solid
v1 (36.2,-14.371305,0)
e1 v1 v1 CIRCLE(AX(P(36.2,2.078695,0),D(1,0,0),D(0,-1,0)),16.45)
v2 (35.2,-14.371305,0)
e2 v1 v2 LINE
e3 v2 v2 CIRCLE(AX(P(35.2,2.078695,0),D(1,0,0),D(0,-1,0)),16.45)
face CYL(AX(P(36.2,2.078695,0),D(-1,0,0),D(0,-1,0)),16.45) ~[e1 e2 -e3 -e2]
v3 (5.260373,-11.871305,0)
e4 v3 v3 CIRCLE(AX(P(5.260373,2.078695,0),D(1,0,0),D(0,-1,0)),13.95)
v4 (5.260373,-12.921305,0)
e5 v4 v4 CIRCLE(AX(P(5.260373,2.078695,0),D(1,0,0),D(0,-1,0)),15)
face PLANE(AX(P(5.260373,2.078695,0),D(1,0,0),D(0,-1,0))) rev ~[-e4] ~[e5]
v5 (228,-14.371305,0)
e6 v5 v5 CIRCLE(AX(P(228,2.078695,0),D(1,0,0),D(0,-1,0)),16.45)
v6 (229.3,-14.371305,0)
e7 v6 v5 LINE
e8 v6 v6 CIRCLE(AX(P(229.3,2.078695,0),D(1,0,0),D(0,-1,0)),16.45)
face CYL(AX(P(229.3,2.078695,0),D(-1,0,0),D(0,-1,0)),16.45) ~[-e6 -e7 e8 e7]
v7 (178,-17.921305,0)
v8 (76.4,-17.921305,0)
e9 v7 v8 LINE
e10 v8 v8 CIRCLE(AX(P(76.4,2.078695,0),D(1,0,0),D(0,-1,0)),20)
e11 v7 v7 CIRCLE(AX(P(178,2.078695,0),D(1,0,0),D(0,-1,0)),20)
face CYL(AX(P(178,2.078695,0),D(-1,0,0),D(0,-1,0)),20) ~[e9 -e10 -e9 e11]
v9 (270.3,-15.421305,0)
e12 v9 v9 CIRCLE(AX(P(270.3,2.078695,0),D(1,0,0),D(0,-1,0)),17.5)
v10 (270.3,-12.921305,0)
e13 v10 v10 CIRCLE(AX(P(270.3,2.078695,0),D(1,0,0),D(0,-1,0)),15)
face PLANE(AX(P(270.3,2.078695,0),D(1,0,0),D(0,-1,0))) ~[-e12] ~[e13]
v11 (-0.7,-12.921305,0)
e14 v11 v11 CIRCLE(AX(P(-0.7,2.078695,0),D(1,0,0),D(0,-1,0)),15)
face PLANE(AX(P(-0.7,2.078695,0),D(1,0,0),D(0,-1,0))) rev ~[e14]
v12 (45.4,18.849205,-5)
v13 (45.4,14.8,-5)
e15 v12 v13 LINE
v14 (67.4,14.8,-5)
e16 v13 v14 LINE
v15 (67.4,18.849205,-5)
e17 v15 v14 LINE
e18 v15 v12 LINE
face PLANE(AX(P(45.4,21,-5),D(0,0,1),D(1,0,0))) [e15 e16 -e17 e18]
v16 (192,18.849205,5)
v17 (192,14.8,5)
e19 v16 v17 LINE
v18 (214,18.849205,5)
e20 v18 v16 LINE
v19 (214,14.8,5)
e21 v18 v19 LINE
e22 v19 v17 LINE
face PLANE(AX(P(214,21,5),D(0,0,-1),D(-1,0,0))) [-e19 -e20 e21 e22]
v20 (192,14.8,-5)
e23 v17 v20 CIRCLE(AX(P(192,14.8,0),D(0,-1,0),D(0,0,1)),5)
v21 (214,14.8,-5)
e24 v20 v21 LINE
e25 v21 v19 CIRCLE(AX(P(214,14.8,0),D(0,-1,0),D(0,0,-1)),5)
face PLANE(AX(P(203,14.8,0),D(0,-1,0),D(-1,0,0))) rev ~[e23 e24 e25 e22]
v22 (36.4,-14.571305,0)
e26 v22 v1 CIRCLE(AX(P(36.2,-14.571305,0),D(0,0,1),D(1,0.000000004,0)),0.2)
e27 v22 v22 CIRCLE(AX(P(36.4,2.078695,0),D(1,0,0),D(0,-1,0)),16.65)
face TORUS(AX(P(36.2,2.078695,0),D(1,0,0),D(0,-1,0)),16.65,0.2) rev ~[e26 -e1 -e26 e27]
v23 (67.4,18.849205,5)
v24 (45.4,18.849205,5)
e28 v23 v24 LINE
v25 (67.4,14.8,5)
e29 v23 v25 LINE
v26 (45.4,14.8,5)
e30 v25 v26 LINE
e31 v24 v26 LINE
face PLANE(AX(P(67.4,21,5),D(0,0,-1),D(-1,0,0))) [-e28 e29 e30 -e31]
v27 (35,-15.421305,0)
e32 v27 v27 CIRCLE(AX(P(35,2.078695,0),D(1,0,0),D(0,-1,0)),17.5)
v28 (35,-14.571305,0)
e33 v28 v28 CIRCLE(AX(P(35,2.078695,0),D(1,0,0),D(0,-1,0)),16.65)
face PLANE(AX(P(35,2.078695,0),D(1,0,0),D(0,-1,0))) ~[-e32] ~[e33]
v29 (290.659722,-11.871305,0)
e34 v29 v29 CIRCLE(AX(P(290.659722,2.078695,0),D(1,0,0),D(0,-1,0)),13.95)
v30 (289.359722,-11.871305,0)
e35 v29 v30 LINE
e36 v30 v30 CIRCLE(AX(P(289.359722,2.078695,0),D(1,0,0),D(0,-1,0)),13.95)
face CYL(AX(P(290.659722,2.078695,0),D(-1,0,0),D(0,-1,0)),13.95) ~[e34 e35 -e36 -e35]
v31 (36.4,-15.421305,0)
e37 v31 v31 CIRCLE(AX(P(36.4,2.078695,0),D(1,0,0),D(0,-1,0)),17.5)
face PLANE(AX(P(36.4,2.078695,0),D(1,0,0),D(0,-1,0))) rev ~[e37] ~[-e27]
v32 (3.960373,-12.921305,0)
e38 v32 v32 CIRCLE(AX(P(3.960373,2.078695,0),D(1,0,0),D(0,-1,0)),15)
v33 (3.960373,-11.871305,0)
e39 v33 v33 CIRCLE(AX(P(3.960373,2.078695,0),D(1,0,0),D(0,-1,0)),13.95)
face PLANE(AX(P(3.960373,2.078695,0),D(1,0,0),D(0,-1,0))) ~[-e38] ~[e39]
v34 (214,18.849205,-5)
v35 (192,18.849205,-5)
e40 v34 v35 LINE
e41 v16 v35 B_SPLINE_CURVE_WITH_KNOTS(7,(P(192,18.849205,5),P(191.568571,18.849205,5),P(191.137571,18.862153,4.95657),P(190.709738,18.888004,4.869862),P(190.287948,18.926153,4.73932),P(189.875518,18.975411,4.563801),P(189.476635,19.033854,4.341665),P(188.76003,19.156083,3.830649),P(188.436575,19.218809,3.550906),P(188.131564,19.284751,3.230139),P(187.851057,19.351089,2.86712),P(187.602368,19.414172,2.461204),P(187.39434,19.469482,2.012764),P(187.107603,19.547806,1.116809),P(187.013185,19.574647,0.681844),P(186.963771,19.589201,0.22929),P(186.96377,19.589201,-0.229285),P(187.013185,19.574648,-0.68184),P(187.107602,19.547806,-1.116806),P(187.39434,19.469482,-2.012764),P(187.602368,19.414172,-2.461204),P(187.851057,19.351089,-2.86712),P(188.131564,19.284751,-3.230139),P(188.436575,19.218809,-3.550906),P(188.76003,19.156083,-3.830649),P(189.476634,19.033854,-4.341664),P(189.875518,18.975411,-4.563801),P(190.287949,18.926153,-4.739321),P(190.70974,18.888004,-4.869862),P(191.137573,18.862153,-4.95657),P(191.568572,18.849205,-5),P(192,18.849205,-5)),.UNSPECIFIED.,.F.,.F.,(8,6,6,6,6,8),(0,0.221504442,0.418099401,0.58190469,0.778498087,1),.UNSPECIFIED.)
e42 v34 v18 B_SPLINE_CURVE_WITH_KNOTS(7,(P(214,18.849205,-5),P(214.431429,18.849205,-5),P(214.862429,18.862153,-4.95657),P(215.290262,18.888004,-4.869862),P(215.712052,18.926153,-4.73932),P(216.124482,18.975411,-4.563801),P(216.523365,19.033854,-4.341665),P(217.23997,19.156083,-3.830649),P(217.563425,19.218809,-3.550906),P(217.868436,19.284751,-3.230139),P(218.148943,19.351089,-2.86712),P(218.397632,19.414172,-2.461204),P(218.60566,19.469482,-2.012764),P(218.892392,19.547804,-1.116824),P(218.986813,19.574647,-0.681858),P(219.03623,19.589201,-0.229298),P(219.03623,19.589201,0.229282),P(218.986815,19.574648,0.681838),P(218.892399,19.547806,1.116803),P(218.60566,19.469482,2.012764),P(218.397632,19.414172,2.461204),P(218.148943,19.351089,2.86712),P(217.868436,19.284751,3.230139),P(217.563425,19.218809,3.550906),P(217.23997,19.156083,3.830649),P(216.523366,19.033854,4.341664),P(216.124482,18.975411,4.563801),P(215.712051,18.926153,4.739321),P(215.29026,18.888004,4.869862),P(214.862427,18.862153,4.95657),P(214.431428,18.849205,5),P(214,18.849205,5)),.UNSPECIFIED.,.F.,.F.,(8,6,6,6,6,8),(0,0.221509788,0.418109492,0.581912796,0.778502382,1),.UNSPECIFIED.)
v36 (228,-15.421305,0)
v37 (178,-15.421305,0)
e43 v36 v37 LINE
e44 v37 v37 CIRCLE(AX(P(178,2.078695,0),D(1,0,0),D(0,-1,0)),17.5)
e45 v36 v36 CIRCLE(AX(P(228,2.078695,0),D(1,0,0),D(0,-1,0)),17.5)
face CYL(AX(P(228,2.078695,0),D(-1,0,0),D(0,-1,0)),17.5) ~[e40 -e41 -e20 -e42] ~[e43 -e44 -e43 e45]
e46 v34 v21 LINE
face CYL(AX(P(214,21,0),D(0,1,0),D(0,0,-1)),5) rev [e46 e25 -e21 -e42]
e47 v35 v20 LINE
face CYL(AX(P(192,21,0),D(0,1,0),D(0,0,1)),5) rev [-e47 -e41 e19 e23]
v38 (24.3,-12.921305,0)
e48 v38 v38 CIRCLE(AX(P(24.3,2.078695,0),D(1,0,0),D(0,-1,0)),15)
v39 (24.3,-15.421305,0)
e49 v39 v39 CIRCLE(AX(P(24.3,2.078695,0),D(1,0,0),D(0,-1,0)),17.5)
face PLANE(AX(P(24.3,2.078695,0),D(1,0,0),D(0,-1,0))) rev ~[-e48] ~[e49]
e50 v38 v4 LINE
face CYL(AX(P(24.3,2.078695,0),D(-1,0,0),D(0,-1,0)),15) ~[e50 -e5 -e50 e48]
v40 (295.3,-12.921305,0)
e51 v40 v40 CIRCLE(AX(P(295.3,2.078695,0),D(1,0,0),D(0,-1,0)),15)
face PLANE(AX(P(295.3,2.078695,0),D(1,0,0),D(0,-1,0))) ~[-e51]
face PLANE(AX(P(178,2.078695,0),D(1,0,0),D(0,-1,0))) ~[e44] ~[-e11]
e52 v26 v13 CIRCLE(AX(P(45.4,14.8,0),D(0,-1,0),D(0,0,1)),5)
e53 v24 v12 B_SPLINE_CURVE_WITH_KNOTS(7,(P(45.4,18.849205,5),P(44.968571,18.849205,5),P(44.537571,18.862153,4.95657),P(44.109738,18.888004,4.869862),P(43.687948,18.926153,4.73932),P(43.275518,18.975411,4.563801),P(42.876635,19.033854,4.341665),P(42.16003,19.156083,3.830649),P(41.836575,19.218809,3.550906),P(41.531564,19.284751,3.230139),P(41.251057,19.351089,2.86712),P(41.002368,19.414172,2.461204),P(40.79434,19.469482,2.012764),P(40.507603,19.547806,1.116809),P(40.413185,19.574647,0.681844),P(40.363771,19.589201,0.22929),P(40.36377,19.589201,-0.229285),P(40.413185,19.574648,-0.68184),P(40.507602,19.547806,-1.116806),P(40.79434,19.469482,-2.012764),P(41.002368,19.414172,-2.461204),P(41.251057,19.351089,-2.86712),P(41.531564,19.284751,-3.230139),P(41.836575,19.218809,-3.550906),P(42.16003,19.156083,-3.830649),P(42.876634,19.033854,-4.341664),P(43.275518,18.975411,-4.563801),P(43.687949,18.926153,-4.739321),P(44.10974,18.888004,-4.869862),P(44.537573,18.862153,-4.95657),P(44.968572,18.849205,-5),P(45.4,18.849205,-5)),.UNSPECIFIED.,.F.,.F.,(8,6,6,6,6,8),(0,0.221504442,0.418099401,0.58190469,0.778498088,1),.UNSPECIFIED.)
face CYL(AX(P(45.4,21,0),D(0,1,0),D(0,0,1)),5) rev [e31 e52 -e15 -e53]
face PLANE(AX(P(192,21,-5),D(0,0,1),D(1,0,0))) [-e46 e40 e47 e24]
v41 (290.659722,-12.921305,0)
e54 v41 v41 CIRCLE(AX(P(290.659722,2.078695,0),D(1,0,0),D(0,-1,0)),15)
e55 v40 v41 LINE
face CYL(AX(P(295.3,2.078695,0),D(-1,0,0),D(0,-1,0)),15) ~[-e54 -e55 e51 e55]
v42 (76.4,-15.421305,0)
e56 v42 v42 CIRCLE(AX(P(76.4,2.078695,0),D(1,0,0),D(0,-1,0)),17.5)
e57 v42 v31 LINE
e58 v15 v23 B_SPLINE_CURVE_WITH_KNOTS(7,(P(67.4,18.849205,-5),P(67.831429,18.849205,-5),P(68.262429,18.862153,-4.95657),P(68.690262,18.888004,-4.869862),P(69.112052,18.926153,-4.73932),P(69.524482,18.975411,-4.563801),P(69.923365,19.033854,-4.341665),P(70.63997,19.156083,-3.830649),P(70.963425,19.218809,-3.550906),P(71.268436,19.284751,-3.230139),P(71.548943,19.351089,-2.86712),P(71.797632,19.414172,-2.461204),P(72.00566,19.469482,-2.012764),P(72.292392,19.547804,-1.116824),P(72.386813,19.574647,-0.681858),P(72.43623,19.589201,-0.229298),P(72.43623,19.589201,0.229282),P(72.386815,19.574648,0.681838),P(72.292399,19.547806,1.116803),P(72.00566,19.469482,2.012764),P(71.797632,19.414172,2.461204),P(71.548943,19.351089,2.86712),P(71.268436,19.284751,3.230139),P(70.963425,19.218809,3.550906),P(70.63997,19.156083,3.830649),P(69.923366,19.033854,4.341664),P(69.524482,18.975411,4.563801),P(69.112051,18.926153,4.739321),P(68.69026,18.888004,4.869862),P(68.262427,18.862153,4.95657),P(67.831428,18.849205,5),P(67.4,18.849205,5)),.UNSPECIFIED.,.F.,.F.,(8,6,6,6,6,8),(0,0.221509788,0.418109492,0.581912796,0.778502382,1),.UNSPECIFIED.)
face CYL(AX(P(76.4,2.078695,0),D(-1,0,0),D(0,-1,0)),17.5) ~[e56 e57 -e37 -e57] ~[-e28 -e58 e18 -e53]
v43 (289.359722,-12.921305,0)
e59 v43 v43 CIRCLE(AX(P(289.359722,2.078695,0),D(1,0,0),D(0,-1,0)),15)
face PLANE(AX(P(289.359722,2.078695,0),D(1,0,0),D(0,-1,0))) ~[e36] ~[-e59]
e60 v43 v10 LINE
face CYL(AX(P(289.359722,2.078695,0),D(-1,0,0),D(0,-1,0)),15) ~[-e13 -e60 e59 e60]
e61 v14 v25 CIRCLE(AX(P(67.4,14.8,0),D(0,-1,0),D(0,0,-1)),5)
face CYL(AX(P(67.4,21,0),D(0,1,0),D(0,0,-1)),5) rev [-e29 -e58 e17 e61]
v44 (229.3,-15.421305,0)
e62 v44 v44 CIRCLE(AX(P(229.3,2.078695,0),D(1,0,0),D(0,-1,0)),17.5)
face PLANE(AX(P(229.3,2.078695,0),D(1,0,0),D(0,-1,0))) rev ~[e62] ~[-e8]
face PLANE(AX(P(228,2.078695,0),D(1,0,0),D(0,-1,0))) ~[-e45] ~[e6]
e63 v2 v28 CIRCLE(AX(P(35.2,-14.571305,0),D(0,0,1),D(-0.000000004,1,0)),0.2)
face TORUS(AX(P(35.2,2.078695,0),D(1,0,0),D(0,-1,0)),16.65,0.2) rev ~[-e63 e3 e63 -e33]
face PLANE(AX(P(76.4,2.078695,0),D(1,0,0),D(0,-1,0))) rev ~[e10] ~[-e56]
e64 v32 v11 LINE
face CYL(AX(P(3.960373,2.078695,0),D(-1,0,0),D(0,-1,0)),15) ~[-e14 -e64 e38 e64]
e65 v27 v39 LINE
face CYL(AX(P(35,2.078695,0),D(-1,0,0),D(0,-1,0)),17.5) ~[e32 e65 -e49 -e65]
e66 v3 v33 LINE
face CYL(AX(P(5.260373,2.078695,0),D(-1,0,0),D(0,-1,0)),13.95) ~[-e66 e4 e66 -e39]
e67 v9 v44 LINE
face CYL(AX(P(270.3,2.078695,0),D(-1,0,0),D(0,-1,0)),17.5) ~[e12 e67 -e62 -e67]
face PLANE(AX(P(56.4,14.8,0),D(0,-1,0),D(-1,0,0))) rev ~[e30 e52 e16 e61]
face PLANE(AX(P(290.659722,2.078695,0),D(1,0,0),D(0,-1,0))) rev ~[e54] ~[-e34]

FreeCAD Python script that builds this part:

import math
import FreeCAD as App
import Part
import Sketcher
Q = App.Units.Quantity

doc = App.newDocument("Part")
body = doc.addObject("PartDesign::Body", "Body")

sketch1 = body.newObject("Sketcher::SketchObject", "Sketch")
sketch1.AttachmentSupport = (doc.getObject("XY_Plane"), [""])
sketch1.MapMode = "FlatFace"
sketch1.addGeometry(Part.LineSegment(App.Vector(24.3, 17.08, 0), App.Vector(5.26, 17.08, 0)), False)
sketch1.addGeometry(Part.LineSegment(App.Vector(5.26, 17.08, 0), App.Vector(5.26, 16.03, 0)), False)
sketch1.addGeometry(Part.LineSegment(App.Vector(5.26, 16.03, 0), App.Vector(3.96, 16.03, 0)), False)
sketch1.addGeometry(Part.LineSegment(App.Vector(3.96, 16.03, 0), App.Vector(3.96, 17.08, 0)), False)
sketch1.addGeometry(Part.LineSegment(App.Vector(3.96, 17.08, 0), App.Vector(-0.7, 17.08, 0)), False)
sketch1.addGeometry(Part.LineSegment(App.Vector(-0.7, 17.08, 0), App.Vector(-0.7, 2.08, 0)), False)
sketch1.addGeometry(Part.LineSegment(App.Vector(-0.7, 2.08, 0), App.Vector(295.3, 2.08, 0)), False)
sketch1.addGeometry(Part.LineSegment(App.Vector(295.3, 2.08, 0), App.Vector(295.3, 17.08, 0)), False)
sketch1.addGeometry(Part.LineSegment(App.Vector(295.3, 17.08, 0), App.Vector(290.66, 17.08, 0)), False)
sketch1.addGeometry(Part.LineSegment(App.Vector(290.66, 17.08, 0), App.Vector(290.66, 16.03, 0)), False)
sketch1.addGeometry(Part.LineSegment(App.Vector(290.66, 16.03, 0), App.Vector(289.36, 16.03, 0)), False)
sketch1.addGeometry(Part.LineSegment(App.Vector(289.36, 16.03, 0), App.Vector(289.36, 17.08, 0)), False)
sketch1.addGeometry(Part.LineSegment(App.Vector(289.36, 17.08, 0), App.Vector(270.3, 17.08, 0)), False)
sketch1.addGeometry(Part.LineSegment(App.Vector(270.3, 17.08, 0), App.Vector(270.3, 19.58, 0)), False)
sketch1.addGeometry(Part.LineSegment(App.Vector(270.3, 19.58, 0), App.Vector(229.3, 19.58, 0)), False)
sketch1.addGeometry(Part.LineSegment(App.Vector(229.3, 19.58, 0), App.Vector(229.3, 18.53, 0)), False)
sketch1.addGeometry(Part.LineSegment(App.Vector(229.3, 18.53, 0), App.Vector(228, 18.53, 0)), False)
sketch1.addGeometry(Part.LineSegment(App.Vector(228, 18.53, 0), App.Vector(228, 19.58, 0)), False)
sketch1.addGeometry(Part.LineSegment(App.Vector(228, 19.58, 0), App.Vector(178, 19.58, 0)), False)
sketch1.addGeometry(Part.LineSegment(App.Vector(178, 19.58, 0), App.Vector(178, 22.08, 0)), False)
sketch1.addGeometry(Part.LineSegment(App.Vector(178, 22.08, 0), App.Vector(76.4, 22.08, 0)), False)
sketch1.addGeometry(Part.LineSegment(App.Vector(76.4, 22.08, 0), App.Vector(76.4, 19.58, 0)), False)
sketch1.addGeometry(Part.LineSegment(App.Vector(76.4, 19.58, 0), App.Vector(36.4, 19.58, 0)), False)
sketch1.addGeometry(Part.LineSegment(App.Vector(36.4, 19.58, 0), App.Vector(36.4, 18.73, 0)), False)
sketch1.addGeometry(Part.ArcOfCircle(Part.Circle(App.Vector(36.2, 18.73, 0), App.Vector(0, 0, 1), 0.2), math.radians(-90), math.radians(0)), False)
sketch1.addGeometry(Part.LineSegment(App.Vector(36.2, 18.53, 0), App.Vector(35.2, 18.53, 0)), False)
sketch1.addGeometry(Part.ArcOfCircle(Part.Circle(App.Vector(35.2, 18.73, 0), App.Vector(0, 0, 1), 0.2), math.radians(-180), math.radians(-90)), False)
sketch1.addGeometry(Part.LineSegment(App.Vector(35, 18.73, 0), App.Vector(35, 19.58, 0)), False)
sketch1.addGeometry(Part.LineSegment(App.Vector(35, 19.58, 0), App.Vector(24.3, 19.58, 0)), False)
sketch1.addGeometry(Part.LineSegment(App.Vector(24.3, 19.58, 0), App.Vector(24.3, 17.08, 0)), False)
sketch1.addGeometry(Part.LineSegment(App.Vector(-0.7, 2.08, 0), App.Vector(295.3, 2.08, 0)), True)
sketch1.addConstraint(Sketcher.Constraint("Coincident", 0, 2, 1, 1))
sketch1.addConstraint(Sketcher.Constraint("Coincident", 1, 2, 2, 1))
sketch1.addConstraint(Sketcher.Constraint("Coincident", 2, 2, 3, 1))
sketch1.addConstraint(Sketcher.Constraint("Coincident", 3, 2, 4, 1))
sketch1.addConstraint(Sketcher.Constraint("Coincident", 4, 2, 5, 1))
sketch1.addConstraint(Sketcher.Constraint("Coincident", 5, 2, 6, 1))
sketch1.addConstraint(Sketcher.Constraint("Coincident", 6, 2, 7, 1))
sketch1.addConstraint(Sketcher.Constraint("Coincident", 7, 2, 8, 1))
sketch1.addConstraint(Sketcher.Constraint("Coincident", 8, 2, 9, 1))
sketch1.addConstraint(Sketcher.Constraint("Coincident", 9, 2, 10, 1))
sketch1.addConstraint(Sketcher.Constraint("Coincident", 10, 2, 11, 1))
sketch1.addConstraint(Sketcher.Constraint("Coincident", 11, 2, 12, 1))
sketch1.addConstraint(Sketcher.Constraint("Coincident", 12, 2, 13, 1))
sketch1.addConstraint(Sketcher.Constraint("Coincident", 13, 2, 14, 1))
sketch1.addConstraint(Sketcher.Constraint("Coincident", 14, 2, 15, 1))
sketch1.addConstraint(Sketcher.Constraint("Coincident", 15, 2, 16, 1))
sketch1.addConstraint(Sketcher.Constraint("Coincident", 16, 2, 17, 1))
sketch1.addConstraint(Sketcher.Constraint("Coincident", 17, 2, 18, 1))
sketch1.addConstraint(Sketcher.Constraint("Coincident", 18, 2, 19, 1))
sketch1.addConstraint(Sketcher.Constraint("Coincident", 19, 2, 20, 1))
sketch1.addConstraint(Sketcher.Constraint("Coincident", 20, 2, 21, 1))
sketch1.addConstraint(Sketcher.Constraint("Coincident", 21, 2, 22, 1))
sketch1.addConstraint(Sketcher.Constraint("Coincident", 22, 2, 23, 1))
sketch1.addConstraint(Sketcher.Constraint("Tangent", 23, 2, 24, 2))
sketch1.addConstraint(Sketcher.Constraint("Tangent", 24, 1, 25, 1))
sketch1.addConstraint(Sketcher.Constraint("Tangent", 25, 2, 26, 2))
sketch1.addConstraint(Sketcher.Constraint("Tangent", 26, 1, 27, 1))
sketch1.addConstraint(Sketcher.Constraint("Coincident", 27, 2, 28, 1))
sketch1.addConstraint(Sketcher.Constraint("Coincident", 28, 2, 29, 1))
sketch1.addConstraint(Sketcher.Constraint("Coincident", 29, 2, 0, 1))
sketch1.addConstraint(Sketcher.Constraint("Horizontal", 0))
sketch1.addConstraint(Sketcher.Constraint("Vertical", 1))
sketch1.addConstraint(Sketcher.Constraint("Horizontal", 2))
sketch1.addConstraint(Sketcher.Constraint("Vertical", 3))
sketch1.addConstraint(Sketcher.Constraint("Horizontal", 4))
sketch1.addConstraint(Sketcher.Constraint("Vertical", 5))
sketch1.addConstraint(Sketcher.Constraint("Horizontal", 6))
sketch1.addConstraint(Sketcher.Constraint("Vertical", 7))
sketch1.addConstraint(Sketcher.Constraint("Horizontal", 8))
sketch1.addConstraint(Sketcher.Constraint("Vertical", 9))
sketch1.addConstraint(Sketcher.Constraint("Horizontal", 10))
sketch1.addConstraint(Sketcher.Constraint("Vertical", 11))
sketch1.addConstraint(Sketcher.Constraint("Horizontal", 12))
sketch1.addConstraint(Sketcher.Constraint("Vertical", 13))
sketch1.addConstraint(Sketcher.Constraint("Horizontal", 14))
sketch1.addConstraint(Sketcher.Constraint("Vertical", 15))
sketch1.addConstraint(Sketcher.Constraint("Horizontal", 16))
sketch1.addConstraint(Sketcher.Constraint("Vertical", 17))
sketch1.addConstraint(Sketcher.Constraint("Horizontal", 18))
sketch1.addConstraint(Sketcher.Constraint("Vertical", 19))
sketch1.addConstraint(Sketcher.Constraint("Horizontal", 20))
sketch1.addConstraint(Sketcher.Constraint("Vertical", 21))
sketch1.addConstraint(Sketcher.Constraint("Horizontal", 22))
sketch1.addConstraint(Sketcher.Constraint("Vertical", 23))
sketch1.addConstraint(Sketcher.Constraint("Horizontal", 25))
sketch1.addConstraint(Sketcher.Constraint("Vertical", 27))
sketch1.addConstraint(Sketcher.Constraint("Horizontal", 28))
sketch1.addConstraint(Sketcher.Constraint("Vertical", 29))
sketch1.addConstraint(Sketcher.Constraint("Horizontal", 30))
sketch1.addConstraint(Sketcher.Constraint("Coincident", 30, 1, 5, 2))
sketch1.addConstraint(Sketcher.Constraint("Equal", 24, 26))
sketch1.addConstraint(Sketcher.Constraint("Horizontal", 0, 2, 3, 2))
sketch1.addConstraint(Sketcher.Constraint("Horizontal", 4, 2, 7, 2))
sketch1.addConstraint(Sketcher.Constraint("Horizontal", 2, 2, 9, 2))
sketch1.addConstraint(Sketcher.Constraint("Horizontal", 8, 2, 11, 2))
sketch1.addConstraint(Sketcher.Constraint("Horizontal", 14, 2, 17, 2))
sketch1.addConstraint(Sketcher.Constraint("Horizontal", 18, 2, 21, 2))
sketch1.addConstraint(Sketcher.Constraint("Horizontal", 16, 2, 24, 1))
sketch1.addConstraint(Sketcher.Constraint("Horizontal", 22, 2, 27, 2))
sketch1.addConstraint(Sketcher.Constraint("Vertical", 7, 2, 30, 2))
sketch1.addConstraint(Sketcher.Constraint("Equal", 2, 10))
sketch1.addConstraint(Sketcher.Constraint("Equal", 10, 16))
sketch1.addConstraint(Sketcher.Constraint("Equal", 11, 15))
sketch1.addConstraint(Sketcher.Constraint("Equal", 13, 19))
sketch1.addConstraint(Sketcher.Constraint("Radius", 24, Q("0.2 mm")))
sketch1.addConstraint(Sketcher.Constraint("DistanceX", 6, 1, 6, 2, Q("296 mm")))
sketch1.addConstraint(Sketcher.Constraint("DistanceX", 14, 2, 14, 1, Q("41 mm")))
sketch1.addConstraint(Sketcher.Constraint("DistanceX", 18, 2, 18, 1, Q("50 mm")))
sketch1.addConstraint(Sketcher.Constraint("DistanceX", 22, 2, 22, 1, Q("40 mm")))
sketch1.addConstraint(Sketcher.Constraint("DistanceX", 25, 2, 25, 1, Q("1 mm")))
sketch1.addConstraint(Sketcher.Constraint("DistanceY", 5, 2, 5, 1, Q("15 mm")))
sketch1.addConstraint(Sketcher.Constraint("DistanceX", 2, 2, 2, 1, Q("1.3 mm")))
sketch1.addConstraint(Sketcher.Constraint("DistanceX", 20, 2, 20, 1, Q("101.6 mm")))
sketch1.addConstraint(Sketcher.Constraint("DistanceX", 28, 2, 28, 1, Q("10.7 mm")))
sketch1.addConstraint(Sketcher.Constraint("DistanceY", 13, 1, 13, 2, Q("2.5 mm")))
sketch1.addConstraint(Sketcher.Constraint("DistanceX", -1, 1, 16, 2, Q("228 mm")))
sketch1.addConstraint(Sketcher.Constraint("DistanceX", 12, 2, 7, 2, Q("25 mm")))
sketch1.addConstraint(Sketcher.Constraint("DistanceY", 1, 2, 1, 1, Q("1.05 mm")))
sketch1.addConstraint(Sketcher.Constraint("DistanceX", 0, 2, 0, 1, Q("19.039627 mm")))
sketch1.addConstraint(Sketcher.Constraint("DistanceX", 8, 2, 8, 1, Q("4.640278 mm")))
sketch1.addConstraint(Sketcher.Constraint("DistanceY", -1, 1, 24, 3, Q("18.728695 mm")))
revolution = body.newObject("PartDesign::Revolution", "Revolution")
revolution.Profile = sketch1
revolution.ReferenceAxis = (sketch1, ["Axis0"])
revolution.Angle = 360

sketch2 = body.newObject("Sketcher::SketchObject", "Sketch001")
sketch2.AttachmentSupport = (doc.getObject("XZ_Plane"), [""])
sketch2.MapMode = "FlatFace"
sketch2.AttachmentOffset = App.Placement(App.Vector(0, 0, -21), App.Rotation())
sketch2.addGeometry(Part.LineSegment(App.Vector(67, -5, 0), App.Vector(45, -5, 0)), False)
sketch2.addGeometry(Part.ArcOfCircle(Part.Circle(App.Vector(45, 0, 0), App.Vector(0, 0, 1), 5), math.radians(90), math.radians(270)), False)
sketch2.addGeometry(Part.LineSegment(App.Vector(45, 5, 0), App.Vector(67, 5, 0)), False)
sketch2.addGeometry(Part.ArcOfCircle(Part.Circle(App.Vector(67, 0, 0), App.Vector(0, 0, 1), 5), math.radians(-90), math.radians(90)), False)
sketch2.addGeometry(Part.LineSegment(App.Vector(214, -5, 0), App.Vector(192, -5, 0)), False)
sketch2.addGeometry(Part.ArcOfCircle(Part.Circle(App.Vector(192, 0, 0), App.Vector(0, 0, 1), 5), math.radians(90), math.radians(270)), False)
sketch2.addGeometry(Part.LineSegment(App.Vector(192, 5, 0), App.Vector(214, 5, 0)), False)
sketch2.addGeometry(Part.ArcOfCircle(Part.Circle(App.Vector(214, 0, 0), App.Vector(0, 0, 1), 5), math.radians(-90), math.radians(90)), False)
sketch2.addConstraint(Sketcher.Constraint("Tangent", 0, 2, 1, 2))
sketch2.addConstraint(Sketcher.Constraint("Tangent", 1, 1, 2, 1))
sketch2.addConstraint(Sketcher.Constraint("Tangent", 2, 2, 3, 2))
sketch2.addConstraint(Sketcher.Constraint("Tangent", 3, 1, 0, 1))
sketch2.addConstraint(Sketcher.Constraint("Tangent", 4, 2, 5, 2))
sketch2.addConstraint(Sketcher.Constraint("Tangent", 5, 1, 6, 1))
sketch2.addConstraint(Sketcher.Constraint("Tangent", 6, 2, 7, 2))
sketch2.addConstraint(Sketcher.Constraint("Tangent", 7, 1, 4, 1))
sketch2.addConstraint(Sketcher.Constraint("Horizontal", 0))
sketch2.addConstraint(Sketcher.Constraint("Horizontal", 2))
sketch2.addConstraint(Sketcher.Constraint("Horizontal", 4))
sketch2.addConstraint(Sketcher.Constraint("Horizontal", 6))
sketch2.addConstraint(Sketcher.Constraint("Equal", 3, 5))
sketch2.addConstraint(Sketcher.Constraint("PointOnObject", 1, 3, -1))
sketch2.addConstraint(Sketcher.Constraint("PointOnObject", 5, 3, -1))
sketch2.addConstraint(Sketcher.Constraint("Equal", 2, 4))
sketch2.addConstraint(Sketcher.Constraint("Radius", 1, Q("5 mm")))
sketch2.addConstraint(Sketcher.Constraint("DistanceX", 0, 2, 0, 1, Q("22 mm")))
sketch2.addConstraint(Sketcher.Constraint("DistanceX", -1, 1, 5, 3, Q("192 mm")))
sketch2.addConstraint(Sketcher.Constraint("DistanceX", -1, 1, 1, 3, Q("45.4 mm")))
pocket1 = body.newObject("PartDesign::Pocket", "Pocket")
pocket1.Profile = sketch2
pocket1.Length = 6.2
pocket1.Reversed = True

doc.recompute()
